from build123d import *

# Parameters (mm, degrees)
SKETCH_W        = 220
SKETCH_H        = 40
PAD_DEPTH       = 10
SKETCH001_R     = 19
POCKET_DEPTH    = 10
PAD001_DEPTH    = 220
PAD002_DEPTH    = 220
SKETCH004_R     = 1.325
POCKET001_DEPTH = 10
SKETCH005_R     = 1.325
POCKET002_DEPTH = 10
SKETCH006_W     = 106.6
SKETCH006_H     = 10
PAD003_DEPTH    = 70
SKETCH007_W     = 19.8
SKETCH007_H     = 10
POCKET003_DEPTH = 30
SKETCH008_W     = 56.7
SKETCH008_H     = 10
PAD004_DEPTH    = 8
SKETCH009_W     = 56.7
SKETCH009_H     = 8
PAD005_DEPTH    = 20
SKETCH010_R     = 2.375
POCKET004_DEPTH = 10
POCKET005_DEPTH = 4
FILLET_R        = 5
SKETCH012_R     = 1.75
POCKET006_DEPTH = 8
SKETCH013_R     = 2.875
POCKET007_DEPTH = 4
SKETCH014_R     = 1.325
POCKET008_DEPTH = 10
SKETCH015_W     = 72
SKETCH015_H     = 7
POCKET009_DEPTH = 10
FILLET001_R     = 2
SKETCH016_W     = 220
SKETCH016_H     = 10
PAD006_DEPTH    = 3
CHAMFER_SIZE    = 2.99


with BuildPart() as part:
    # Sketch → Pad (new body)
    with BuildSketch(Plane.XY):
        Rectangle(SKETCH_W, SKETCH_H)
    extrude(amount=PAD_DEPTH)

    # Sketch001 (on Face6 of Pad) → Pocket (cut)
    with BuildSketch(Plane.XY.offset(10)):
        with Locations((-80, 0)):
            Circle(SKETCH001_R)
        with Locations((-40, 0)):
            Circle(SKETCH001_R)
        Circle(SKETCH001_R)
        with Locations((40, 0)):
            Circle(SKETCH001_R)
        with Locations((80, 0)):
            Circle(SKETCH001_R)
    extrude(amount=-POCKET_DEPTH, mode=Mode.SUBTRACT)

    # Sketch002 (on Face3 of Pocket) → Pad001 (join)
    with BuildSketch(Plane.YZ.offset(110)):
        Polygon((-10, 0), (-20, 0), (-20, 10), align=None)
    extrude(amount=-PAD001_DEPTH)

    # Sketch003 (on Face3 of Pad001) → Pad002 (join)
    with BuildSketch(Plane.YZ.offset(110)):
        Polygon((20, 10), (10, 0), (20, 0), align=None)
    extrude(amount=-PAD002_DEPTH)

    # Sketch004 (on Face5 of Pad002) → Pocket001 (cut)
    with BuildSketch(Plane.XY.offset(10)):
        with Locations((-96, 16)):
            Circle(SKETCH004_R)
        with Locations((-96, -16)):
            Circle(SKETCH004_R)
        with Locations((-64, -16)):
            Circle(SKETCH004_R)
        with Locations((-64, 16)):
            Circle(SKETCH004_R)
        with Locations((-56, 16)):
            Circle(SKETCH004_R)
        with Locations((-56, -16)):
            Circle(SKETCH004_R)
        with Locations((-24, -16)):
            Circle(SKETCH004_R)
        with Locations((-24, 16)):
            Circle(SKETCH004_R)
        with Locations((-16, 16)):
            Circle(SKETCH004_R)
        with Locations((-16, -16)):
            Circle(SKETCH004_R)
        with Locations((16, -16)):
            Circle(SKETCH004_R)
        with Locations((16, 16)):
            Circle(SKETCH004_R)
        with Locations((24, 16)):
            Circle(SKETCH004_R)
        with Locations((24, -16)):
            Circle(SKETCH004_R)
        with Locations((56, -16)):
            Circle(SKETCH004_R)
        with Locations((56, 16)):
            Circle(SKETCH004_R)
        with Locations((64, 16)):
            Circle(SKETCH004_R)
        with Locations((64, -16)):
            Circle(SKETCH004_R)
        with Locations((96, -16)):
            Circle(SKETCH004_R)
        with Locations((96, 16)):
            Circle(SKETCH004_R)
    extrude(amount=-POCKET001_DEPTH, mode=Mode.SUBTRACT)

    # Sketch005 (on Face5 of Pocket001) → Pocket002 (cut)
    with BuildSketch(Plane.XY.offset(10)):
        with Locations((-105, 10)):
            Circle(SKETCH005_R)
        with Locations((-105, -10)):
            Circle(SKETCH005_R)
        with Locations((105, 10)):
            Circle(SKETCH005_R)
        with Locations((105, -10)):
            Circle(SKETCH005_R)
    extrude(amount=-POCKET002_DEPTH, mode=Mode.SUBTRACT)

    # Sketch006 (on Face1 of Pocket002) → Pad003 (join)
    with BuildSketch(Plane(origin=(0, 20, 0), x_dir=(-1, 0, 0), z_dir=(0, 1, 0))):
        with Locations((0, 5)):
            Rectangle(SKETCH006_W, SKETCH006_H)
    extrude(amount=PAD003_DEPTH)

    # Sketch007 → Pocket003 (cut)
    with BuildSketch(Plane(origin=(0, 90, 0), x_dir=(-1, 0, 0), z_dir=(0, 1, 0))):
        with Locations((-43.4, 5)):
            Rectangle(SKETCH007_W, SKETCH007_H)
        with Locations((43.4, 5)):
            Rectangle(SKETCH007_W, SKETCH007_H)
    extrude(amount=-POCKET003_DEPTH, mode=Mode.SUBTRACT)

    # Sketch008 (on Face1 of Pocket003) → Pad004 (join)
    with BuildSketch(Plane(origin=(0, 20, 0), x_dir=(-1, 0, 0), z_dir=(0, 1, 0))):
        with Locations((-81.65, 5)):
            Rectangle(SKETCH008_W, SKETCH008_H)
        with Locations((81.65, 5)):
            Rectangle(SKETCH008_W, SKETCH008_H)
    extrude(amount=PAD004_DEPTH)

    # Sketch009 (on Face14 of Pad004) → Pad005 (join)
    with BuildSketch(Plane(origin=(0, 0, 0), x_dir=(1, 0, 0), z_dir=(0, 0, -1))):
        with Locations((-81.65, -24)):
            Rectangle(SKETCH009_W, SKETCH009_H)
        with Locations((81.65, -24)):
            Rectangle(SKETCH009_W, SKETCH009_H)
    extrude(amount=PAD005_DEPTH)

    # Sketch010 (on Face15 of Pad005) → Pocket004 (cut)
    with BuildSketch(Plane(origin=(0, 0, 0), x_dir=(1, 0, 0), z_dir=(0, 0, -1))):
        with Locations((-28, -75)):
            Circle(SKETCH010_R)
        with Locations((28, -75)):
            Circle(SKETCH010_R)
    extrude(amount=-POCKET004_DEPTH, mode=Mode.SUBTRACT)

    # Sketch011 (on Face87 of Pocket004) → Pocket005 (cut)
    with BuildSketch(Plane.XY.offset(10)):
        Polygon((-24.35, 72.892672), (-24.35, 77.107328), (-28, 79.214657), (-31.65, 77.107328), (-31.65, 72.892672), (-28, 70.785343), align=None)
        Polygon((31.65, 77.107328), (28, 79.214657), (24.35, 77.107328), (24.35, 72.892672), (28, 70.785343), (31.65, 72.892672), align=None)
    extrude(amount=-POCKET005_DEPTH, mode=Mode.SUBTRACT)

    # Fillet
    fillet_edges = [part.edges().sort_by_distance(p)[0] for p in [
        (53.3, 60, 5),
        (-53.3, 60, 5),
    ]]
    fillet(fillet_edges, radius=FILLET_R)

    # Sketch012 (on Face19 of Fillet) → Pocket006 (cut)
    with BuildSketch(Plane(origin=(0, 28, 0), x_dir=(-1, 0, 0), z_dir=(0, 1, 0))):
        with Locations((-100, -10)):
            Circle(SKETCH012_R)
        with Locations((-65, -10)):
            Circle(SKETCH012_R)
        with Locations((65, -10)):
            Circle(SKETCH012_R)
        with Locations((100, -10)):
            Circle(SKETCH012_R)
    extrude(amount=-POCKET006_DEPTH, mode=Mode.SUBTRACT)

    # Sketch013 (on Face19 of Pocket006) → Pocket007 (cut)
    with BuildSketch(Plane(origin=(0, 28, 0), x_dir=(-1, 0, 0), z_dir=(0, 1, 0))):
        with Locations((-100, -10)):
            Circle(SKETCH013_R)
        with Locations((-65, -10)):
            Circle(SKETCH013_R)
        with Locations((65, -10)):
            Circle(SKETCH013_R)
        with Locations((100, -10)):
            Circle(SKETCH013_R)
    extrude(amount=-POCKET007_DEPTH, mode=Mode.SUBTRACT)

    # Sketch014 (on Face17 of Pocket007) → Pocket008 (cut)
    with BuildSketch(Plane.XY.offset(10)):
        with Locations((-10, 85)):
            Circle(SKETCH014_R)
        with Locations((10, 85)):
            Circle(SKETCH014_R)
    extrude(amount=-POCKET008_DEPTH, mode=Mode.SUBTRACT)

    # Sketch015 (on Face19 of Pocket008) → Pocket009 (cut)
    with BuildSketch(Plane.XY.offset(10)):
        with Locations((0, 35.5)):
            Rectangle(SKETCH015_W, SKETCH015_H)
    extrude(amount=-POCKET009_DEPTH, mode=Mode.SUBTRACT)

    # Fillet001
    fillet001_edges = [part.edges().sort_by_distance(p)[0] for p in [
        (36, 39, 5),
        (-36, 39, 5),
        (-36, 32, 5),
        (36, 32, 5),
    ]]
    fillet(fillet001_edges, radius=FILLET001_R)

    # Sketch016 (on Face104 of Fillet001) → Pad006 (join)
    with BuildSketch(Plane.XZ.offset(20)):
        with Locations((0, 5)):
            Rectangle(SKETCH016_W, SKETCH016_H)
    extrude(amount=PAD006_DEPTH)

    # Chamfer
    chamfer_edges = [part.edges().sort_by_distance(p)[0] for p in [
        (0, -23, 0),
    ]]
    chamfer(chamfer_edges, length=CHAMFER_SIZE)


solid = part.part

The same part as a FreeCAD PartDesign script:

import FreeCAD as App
import Part
import Sketcher
Q = App.Units.Quantity


def edges_at(feature, points):
    """Names of the edges that pass closest to the given points."""
    edges = feature.Shape.Edges
    near = lambda p: min(range(len(edges)), key=lambda i: edges[i].distToShape(Part.Vertex(*p))[0])
    return sorted({f"Edge{near(p) + 1}" for p in points})


def add_polygon(sketch, points):
    """Adds a closed chain of lines whose ends are joined by coincident constraints."""
    first, n = sketch.GeometryCount, len(points)
    for a, b in zip(points, points[1:] + points[:1]):
        sketch.addGeometry(Part.LineSegment(App.Vector(*a, 0), App.Vector(*b, 0)), False)
    for i in range(n):
        sketch.addConstraint(Sketcher.Constraint("Coincident", first + i, 2, first + (i + 1) % n, 1))

doc = App.newDocument("Part")
body = doc.addObject("PartDesign::Body", "Body")

sketch1 = body.newObject("Sketcher::SketchObject", "Sketch")
sketch1.AttachmentSupport = (doc.getObject("XY_Plane"), [""])
sketch1.MapMode = "FlatFace"
add_polygon(sketch1, [(-110, 20), (-110, -20), (110, -20), (110, 20)])
sketch1.addConstraint(Sketcher.Constraint("Vertical", 0))
sketch1.addConstraint(Sketcher.Constraint("Horizontal", 1))
sketch1.addConstraint(Sketcher.Constraint("Vertical", 2))
sketch1.addConstraint(Sketcher.Constraint("Horizontal", 3))
sketch1.addConstraint(Sketcher.Constraint("Symmetric", 0, 2, 2, 2, -1, 1))
sketch1.addConstraint(Sketcher.Constraint("DistanceX", 1, 1, 1, 2, Q("220 mm")))
sketch1.addConstraint(Sketcher.Constraint("DistanceY", 0, 2, 0, 1, Q("40 mm")))
pad1 = body.newObject("PartDesign::Pad", "Pad")
pad1.Profile = sketch1
pad1.Length = 10

sketch2 = body.newObject("Sketcher::SketchObject", "Sketch001")
sketch2.AttachmentSupport = (doc.getObject("XY_Plane"), [""])
sketch2.MapMode = "FlatFace"
sketch2.AttachmentOffset = App.Placement(App.Vector(0, 0, 10), App.Rotation())
sketch2.addGeometry(Part.Circle(App.Vector(-80, 0, 0), App.Vector(0, 0, 1), 19), False)
sketch2.addGeometry(Part.Circle(App.Vector(-40, 0, 0), App.Vector(0, 0, 1), 19), False)
sketch2.addGeometry(Part.Circle(App.Vector(0, 0, 0), App.Vector(0, 0, 1), 19), False)
sketch2.addGeometry(Part.Circle(App.Vector(40, 0, 0), App.Vector(0, 0, 1), 19), False)
sketch2.addGeometry(Part.Circle(App.Vector(80, 0, 0), App.Vector(0, 0, 1), 19), False)
sketch2.addConstraint(Sketcher.Constraint("Coincident", 2, 3, -1, 1))
sketch2.addConstraint(Sketcher.Constraint("Equal", 0, 1))
sketch2.addConstraint(Sketcher.Constraint("Equal", 1, 2))
sketch2.addConstraint(Sketcher.Constraint("Equal", 2, 3))
sketch2.addConstraint(Sketcher.Constraint("Equal", 3, 4))
sketch2.addConstraint(Sketcher.Constraint("Symmetric", 1, 3, 3, 3, -1, 1))
sketch2.addConstraint(Sketcher.Constraint("Symmetric", 0, 3, 4, 3, -1, 1))
sketch2.addConstraint(Sketcher.Constraint("PointOnObject", 0, 3, -1))
sketch2.addConstraint(Sketcher.Constraint("PointOnObject", 1, 3, -1))
sketch2.addConstraint(Sketcher.Constraint("Diameter", 0, Q("38 mm")))
sketch2.addConstraint(Sketcher.Constraint("DistanceX", 0, 3, -1, 1, Q("80 mm")))
sketch2.addConstraint(Sketcher.Constraint("DistanceX", 1, 3, -1, 1, Q("40 mm")))
pocket1 = body.newObject("PartDesign::Pocket", "Pocket")
pocket1.Profile = sketch2
pocket1.Length = 10

sketch3 = body.newObject("Sketcher::SketchObject", "Sketch002")
sketch3.AttachmentSupport = (doc.getObject("YZ_Plane"), [""])
sketch3.MapMode = "FlatFace"
sketch3.AttachmentOffset = App.Placement(App.Vector(0, 0, 110), App.Rotation())
add_polygon(sketch3, [(-20, 0), (-10, 0), (-20, 10)])
sketch3.addConstraint(Sketcher.Constraint("Horizontal", 0))
sketch3.addConstraint(Sketcher.Constraint("Vertical", 2))
sketch3.addConstraint(Sketcher.Constraint("PointOnObject", 0, 2, -1))
sketch3.addConstraint(Sketcher.Constraint("Equal", 0, 2))
sketch3.addConstraint(Sketcher.Constraint("DistanceX", 0, 1, 0, 2, Q("10 mm")))
sketch3.addConstraint(Sketcher.Constraint("DistanceX", 0, 2, -1, 1, Q("10 mm")))
pad2 = body.newObject("PartDesign::Pad", "Pad001")
pad2.Profile = sketch3
pad2.Length = 220
pad2.Reversed = True

sketch4 = body.newObject("Sketcher::SketchObject", "Sketch003")
sketch4.AttachmentSupport = (doc.getObject("YZ_Plane"), [""])
sketch4.MapMode = "FlatFace"
sketch4.AttachmentOffset = App.Placement(App.Vector(0, 0, 110), App.Rotation())
add_polygon(sketch4, [(20, 10), (10, 0), (20, 0)])
sketch4.addConstraint(Sketcher.Constraint("Horizontal", 1))
sketch4.addConstraint(Sketcher.Constraint("Vertical", 2))
sketch4.addConstraint(Sketcher.Constraint("PointOnObject", 0, 2, -1))
sketch4.addConstraint(Sketcher.Constraint("Equal", 1, 2))
sketch4.addConstraint(Sketcher.Constraint("DistanceX", 1, 1, 1, 2, Q("10 mm")))
sketch4.addConstraint(Sketcher.Constraint("DistanceX", -1, 1, 0, 2, Q("10 mm")))
pad3 = body.newObject("PartDesign::Pad", "Pad002")
pad3.Profile = sketch4
pad3.Length = 220
pad3.Reversed = True

sketch5 = body.newObject("Sketcher::SketchObject", "Sketch004")
sketch5.AttachmentSupport = (doc.getObject("XY_Plane"), [""])
sketch5.MapMode = "FlatFace"
sketch5.AttachmentOffset = App.Placement(App.Vector(0, 0, 10), App.Rotation())
sketch5.addGeometry(Part.Circle(App.Vector(-96, 16, 0), App.Vector(0, 0, 1), 1.3), False)
sketch5.addGeometry(Part.Circle(App.Vector(-96, -16, 0), App.Vector(0, 0, 1), 1.3), False)
sketch5.addGeometry(Part.Circle(App.Vector(-64, -16, 0), App.Vector(0, 0, 1), 1.3), False)
sketch5.addGeometry(Part.Circle(App.Vector(-64, 16, 0), App.Vector(0, 0, 1), 1.3), False)
sketch5.addGeometry(Part.Circle(App.Vector(-56, 16, 0), App.Vector(0, 0, 1), 1.3), False)
sketch5.addGeometry(Part.Circle(App.Vector(-56, -16, 0), App.Vector(0, 0, 1), 1.3), False)
sketch5.addGeometry(Part.Circle(App.Vector(-24, -16, 0), App.Vector(0, 0, 1), 1.3), False)
sketch5.addGeometry(Part.Circle(App.Vector(-24, 16, 0), App.Vector(0, 0, 1), 1.3), False)
sketch5.addGeometry(Part.Circle(App.Vector(-16, 16, 0), App.Vector(0, 0, 1), 1.3), False)
sketch5.addGeometry(Part.Circle(App.Vector(-16, -16, 0), App.Vector(0, 0, 1), 1.3), False)
sketch5.addGeometry(Part.Circle(App.Vector(16, -16, 0), App.Vector(0, 0, 1), 1.3), False)
sketch5.addGeometry(Part.Circle(App.Vector(16, 16, 0), App.Vector(0, 0, 1), 1.3), False)
sketch5.addGeometry(Part.Circle(App.Vector(24, 16, 0), App.Vector(0, 0, 1), 1.3), False)
sketch5.addGeometry(Part.Circle(App.Vector(24, -16, 0), App.Vector(0, 0, 1), 1.3), False)
sketch5.addGeometry(Part.Circle(App.Vector(56, -16, 0), App.Vector(0, 0, 1), 1.3), False)
sketch5.addGeometry(Part.Circle(App.Vector(56, 16, 0), App.Vector(0, 0, 1), 1.3), False)
sketch5.addGeometry(Part.Circle(App.Vector(64, 16, 0), App.Vector(0, 0, 1), 1.3), False)
sketch5.addGeometry(Part.Circle(App.Vector(64, -16, 0), App.Vector(0, 0, 1), 1.3), False)
sketch5.addGeometry(Part.Circle(App.Vector(96, -16, 0), App.Vector(0, 0, 1), 1.3), False)
sketch5.addGeometry(Part.Circle(App.Vector(96, 16, 0), App.Vector(0, 0, 1), 1.3), False)
sketch5.addConstraint(Sketcher.Constraint("Equal", 0, 1))
sketch5.addConstraint(Sketcher.Constraint("Equal", 1, 2))
sketch5.addConstraint(Sketcher.Constraint("Equal", 2, 3))
sketch5.addConstraint(Sketcher.Constraint("Equal", 3, 4))
sketch5.addConstraint(Sketcher.Constraint("Equal", 4, 5))
sketch5.addConstraint(Sketcher.Constraint("Equal", 5, 6))
sketch5.addConstraint(Sketcher.Constraint("Equal", 6, 7))
sketch5.addConstraint(Sketcher.Constraint("Equal", 7, 8))
sketch5.addConstraint(Sketcher.Constraint("Equal", 8, 9))
sketch5.addConstraint(Sketcher.Constraint("Equal", 9, 10))
sketch5.addConstraint(Sketcher.Constraint("Equal", 10, 11))
sketch5.addConstraint(Sketcher.Constraint("Equal", 11, 12))
sketch5.addConstraint(Sketcher.Constraint("Equal", 12, 13))
sketch5.addConstraint(Sketcher.Constraint("Equal", 13, 14))
sketch5.addConstraint(Sketcher.Constraint("Equal", 14, 15))
sketch5.addConstraint(Sketcher.Constraint("Equal", 15, 16))
sketch5.addConstraint(Sketcher.Constraint("Equal", 16, 17))
sketch5.addConstraint(Sketcher.Constraint("Equal", 17, 18))
sketch5.addConstraint(Sketcher.Constraint("Equal", 18, 19))
sketch5.addConstraint(Sketcher.Constraint("Symmetric", 8, 3, 10, 3, -1, 1))
sketch5.addConstraint(Sketcher.Constraint("Symmetric", 9, 3, 11, 3, -1, 1))
sketch5.addConstraint(Sketcher.Constraint("Symmetric", 6, 3, 12, 3, -1, 1))
sketch5.addConstraint(Sketcher.Constraint("Symmetric", 7, 3, 13, 3, -1, 1))
sketch5.addConstraint(Sketcher.Constraint("Symmetric", 4, 3, 14, 3, -1, 1))
sketch5.addConstraint(Sketcher.Constraint("Symmetric", 5, 3, 15, 3, -1, 1))
sketch5.addConstraint(Sketcher.Constraint("Symmetric", 2, 3, 16, 3, -1, 1))
sketch5.addConstraint(Sketcher.Constraint("Symmetric", 3, 3, 17, 3, -1, 1))
sketch5.addConstraint(Sketcher.Constraint("Symmetric", 0, 3, 18, 3, -1, 1))
sketch5.addConstraint(Sketcher.Constraint("Symmetric", 1, 3, 19, 3, -1, 1))
sketch5.addConstraint(Sketcher.Constraint("Symmetric", 9, 3, 10, 3, -2))
sketch5.addConstraint(Sketcher.Constraint("Symmetric", 7, 3, 12, 3, -2))
sketch5.addConstraint(Sketcher.Constraint("Symmetric", 5, 3, 14, 3, -2))
sketch5.addConstraint(Sketcher.Constraint("Symmetric", 3, 3, 16, 3, -2))
sketch5.addConstraint(Sketcher.Constraint("Symmetric", 1, 3, 18, 3, -2))
sketch5.addConstraint(Sketcher.Constraint("Horizontal", 1, 3, 2, 3))
sketch5.addConstraint(Sketcher.Constraint("Horizontal", 3, 3, 4, 3))
sketch5.addConstraint(Sketcher.Constraint("Horizontal", 5, 3, 6, 3))
sketch5.addConstraint(Sketcher.Constraint("Horizontal", 7, 3, 8, 3))
sketch5.addConstraint(Sketcher.Constraint("Diameter", 0, Q("2.65 mm")))
sketch5.addConstraint(Sketcher.Constraint("DistanceX", 0, 3, -1, 1, Q("96 mm")))
sketch5.addConstraint(Sketcher.Constraint("DistanceY", -1, 1, 0, 3, Q("16 mm")))
sketch5.addConstraint(Sketcher.Constraint("DistanceX", 2, 3, -1, 1, Q("64 mm")))
sketch5.addConstraint(Sketcher.Constraint("DistanceX", 4, 3, -1, 1, Q("56 mm")))
sketch5.addConstraint(Sketcher.Constraint("DistanceX", 6, 3, -1, 1, Q("24 mm")))
sketch5.addConstraint(Sketcher.Constraint("DistanceX", 8, 3, -1, 1, Q("16 mm")))
pocket2 = body.newObject("PartDesign::Pocket", "Pocket001")
pocket2.Profile = sketch5
pocket2.Length = 10

sketch6 = body.newObject("Sketcher::SketchObject", "Sketch005")
sketch6.AttachmentSupport = (doc.getObject("XY_Plane"), [""])
sketch6.MapMode = "FlatFace"
sketch6.AttachmentOffset = App.Placement(App.Vector(0, 0, 10), App.Rotation())
sketch6.addGeometry(Part.Circle(App.Vector(-105, 10, 0), App.Vector(0, 0, 1), 1.3), False)
sketch6.addGeometry(Part.Circle(App.Vector(-105, -10, 0), App.Vector(0, 0, 1), 1.3), False)
sketch6.addGeometry(Part.Circle(App.Vector(105, 10, 0), App.Vector(0, 0, 1), 1.3), False)
sketch6.addGeometry(Part.Circle(App.Vector(105, -10, 0), App.Vector(0, 0, 1), 1.3), False)
sketch6.addConstraint(Sketcher.Constraint("Equal", 0, 1))
sketch6.addConstraint(Sketcher.Constraint("Equal", 1, 2))
sketch6.addConstraint(Sketcher.Constraint("Equal", 2, 3))
sketch6.addConstraint(Sketcher.Constraint("Symmetric", 1, 3, 2, 3, -1, 1))
sketch6.addConstraint(Sketcher.Constraint("Symmetric", 0, 3, 3, 3, -1, 1))
sketch6.addConstraint(Sketcher.Constraint("Symmetric", 0, 3, 2, 3, -2))
sketch6.addConstraint(Sketcher.Constraint("Diameter", 0, Q("2.65 mm")))
sketch6.addConstraint(Sketcher.Constraint("DistanceX", 0, 3, -1, 1, Q("105 mm")))
sketch6.addConstraint(Sketcher.Constraint("DistanceY", -1, 1, 0, 3, Q("10 mm")))
pocket3 = body.newObject("PartDesign::Pocket", "Pocket002")
pocket3.Profile = sketch6
pocket3.Length = 10

sketch7 = body.newObject("Sketcher::SketchObject", "Sketch006")
sketch7.AttachmentSupport = (doc.getObject("XZ_Plane"), [""])
sketch7.MapMode = "FlatFace"
sketch7.AttachmentOffset = App.Placement(App.Vector(0, 0, -20), App.Rotation())
add_polygon(sketch7, [(53, 10), (53, 0), (-53, 0), (-53, 10)])
sketch7.addConstraint(Sketcher.Constraint("Vertical", 0))
sketch7.addConstraint(Sketcher.Constraint("Horizontal", 1))
sketch7.addConstraint(Sketcher.Constraint("Vertical", 2))
sketch7.addConstraint(Sketcher.Constraint("Horizontal", 3))
sketch7.addConstraint(Sketcher.Constraint("Symmetric", 0, 2, 1, 2, -1, 1))
sketch7.addConstraint(Sketcher.Constraint("DistanceY", 0, 2, 0, 1, Q("10 mm")))
sketch7.addConstraint(Sketcher.Constraint("DistanceX", 1, 2, 1, 1, Q("106.6 mm")))
pad4 = body.newObject("PartDesign::Pad", "Pad003")
pad4.Profile = sketch7
pad4.Length = 70
pad4.Reversed = True

sketch8 = body.newObject("Sketcher::SketchObject", "Sketch007")
sketch8.AttachmentSupport = (doc.getObject("XZ_Plane"), [""])
sketch8.MapMode = "FlatFace"
sketch8.AttachmentOffset = App.Placement(App.Vector(0, 0, -90), App.Rotation())
add_polygon(sketch8, [(53, 10), (53, 0), (34, 0), (34, 10)])
add_polygon(sketch8, [(-34, 10), (-34, 0), (-53, 0), (-53, 10)])
sketch8.addConstraint(Sketcher.Constraint("Vertical", 0))
sketch8.addConstraint(Sketcher.Constraint("Horizontal", 1))
sketch8.addConstraint(Sketcher.Constraint("Vertical", 2))
sketch8.addConstraint(Sketcher.Constraint("Horizontal", 3))
sketch8.addConstraint(Sketcher.Constraint("Vertical", 4))
sketch8.addConstraint(Sketcher.Constraint("Horizontal", 5))
sketch8.addConstraint(Sketcher.Constraint("Vertical", 6))
sketch8.addConstraint(Sketcher.Constraint("Horizontal", 7))
sketch8.addConstraint(Sketcher.Constraint("Symmetric", 1, 2, 4, 2, -1, 1))
sketch8.addConstraint(Sketcher.Constraint("Symmetric", 0, 2, 5, 2, -2))
sketch8.addConstraint(Sketcher.Constraint("Horizontal", 3, 2, 6, 2))
sketch8.addConstraint(Sketcher.Constraint("DistanceY", 0, 2, 0, 1, Q("10 mm")))
sketch8.addConstraint(Sketcher.Constraint("DistanceX", 1, 2, 1, 1, Q("19.8 mm")))
sketch8.addConstraint(Sketcher.Constraint("DistanceX", 4, 2, 1, 2, Q("67 mm")))
pocket4 = body.newObject("PartDesign::Pocket", "Pocket003")
pocket4.Profile = sketch8
pocket4.Length = 30
pocket4.Reversed = True

sketch9 = body.newObject("Sketcher::SketchObject", "Sketch008")
sketch9.AttachmentSupport = (doc.getObject("XZ_Plane"), [""])
sketch9.MapMode = "FlatFace"
sketch9.AttachmentOffset = App.Placement(App.Vector(0, 0, -20), App.Rotation())
add_polygon(sketch9, [(110, 10), (110, 0), (53, 0), (53, 10)])
add_polygon(sketch9, [(-53, 10), (-53, 0), (-110, 0), (-110, 10)])
sketch9.addConstraint(Sketcher.Constraint("Vertical", 0))
sketch9.addConstraint(Sketcher.Constraint("Horizontal", 1))
sketch9.addConstraint(Sketcher.Constraint("Vertical", 2))
sketch9.addConstraint(Sketcher.Constraint("Horizontal", 3))
sketch9.addConstraint(Sketcher.Constraint("Vertical", 4))
sketch9.addConstraint(Sketcher.Constraint("Horizontal", 5))
sketch9.addConstraint(Sketcher.Constraint("Vertical", 6))
sketch9.addConstraint(Sketcher.Constraint("Horizontal", 7))
sketch9.addConstraint(Sketcher.Constraint("Symmetric", 1, 2, 4, 2, -1, 1))
sketch9.addConstraint(Sketcher.Constraint("Symmetric", 0, 2, 5, 2, -2))
sketch9.addConstraint(Sketcher.Constraint("Horizontal", 3, 2, 6, 2))
sketch9.addConstraint(Sketcher.Constraint("DistanceY", 0, 2, 0, 1, Q("10 mm")))
sketch9.addConstraint(Sketcher.Constraint("DistanceX", 1, 2, 1, 1, Q("56.7 mm")))
sketch9.addConstraint(Sketcher.Constraint("DistanceX", -1, 1, 0, 2, Q("110 mm")))
pad5 = body.newObject("PartDesign::Pad", "Pad004")
pad5.Profile = sketch9
pad5.Length = 8
pad5.Reversed = True

sketch10 = body.newObject("Sketcher::SketchObject", "Sketch009")
sketch10.AttachmentSupport = (doc.getObject("XY_Plane"), [""])
sketch10.MapMode = "FlatFace"
add_polygon(sketch10, [(-110, 20), (-110, 28), (-53, 28), (-53, 20)])
add_polygon(sketch10, [(53, 20), (53, 28), (110, 28), (110, 20)])
sketch10.addConstraint(Sketcher.Constraint("Vertical", 0))
sketch10.addConstraint(Sketcher.Constraint("Horizontal", 1))
sketch10.addConstraint(Sketcher.Constraint("Vertical", 2))
sketch10.addConstraint(Sketcher.Constraint("Horizontal", 3))
sketch10.addConstraint(Sketcher.Constraint("Vertical", 4))
sketch10.addConstraint(Sketcher.Constraint("Horizontal", 5))
sketch10.addConstraint(Sketcher.Constraint("Vertical", 6))
sketch10.addConstraint(Sketcher.Constraint("Horizontal", 7))
sketch10.addConstraint(Sketcher.Constraint("Symmetric", 1, 2, 4, 2, -2))
sketch10.addConstraint(Sketcher.Constraint("Symmetric", 3, 2, 6, 2, -2))
sketch10.addConstraint(Sketcher.Constraint("DistanceY", 0, 1, 0, 2, Q("8 mm")))
sketch10.addConstraint(Sketcher.Constraint("DistanceX", 1, 1, 1, 2, Q("56.7 mm")))
sketch10.addConstraint(Sketcher.Constraint("DistanceX", 0, 2, -1, 1, Q("110 mm")))
sketch10.addConstraint(Sketcher.Constraint("DistanceY", -1, 1, 0, 2, Q("28 mm")))
pad6 = body.newObject("PartDesign::Pad", "Pad005")
pad6.Profile = sketch10
pad6.Length = 20
pad6.Reversed = True

sketch11 = body.newObject("Sketcher::SketchObject", "Sketch010")
sketch11.AttachmentSupport = (doc.getObject("XY_Plane"), [""])
sketch11.MapMode = "FlatFace"
sketch11.addGeometry(Part.Circle(App.Vector(-28, 75, 0), App.Vector(0, 0, 1), 2.4), False)
sketch11.addGeometry(Part.Circle(App.Vector(28, 75, 0), App.Vector(0, 0, 1), 2.4), False)
sketch11.addConstraint(Sketcher.Constraint("Equal", 0, 1))
sketch11.addConstraint(Sketcher.Constraint("Symmetric", 0, 3, 1, 3, -2))
sketch11.addConstraint(Sketcher.Constraint("Diameter", 0, Q("4.75 mm")))
sketch11.addConstraint(Sketcher.Constraint("DistanceX", 0, 3, -1, 1, Q("28 mm")))
sketch11.addConstraint(Sketcher.Constraint("DistanceY", -1, 1, 0, 3, Q("75 mm")))
pocket5 = body.newObject("PartDesign::Pocket", "Pocket004")
pocket5.Profile = sketch11
pocket5.Length = 10
pocket5.Reversed = True

sketch12 = body.newObject("Sketcher::SketchObject", "Sketch011")
sketch12.AttachmentSupport = (doc.getObject("XY_Plane"), [""])
sketch12.MapMode = "FlatFace"
sketch12.AttachmentOffset = App.Placement(App.Vector(0, 0, 10), App.Rotation())
add_polygon(sketch12, [(-24.4, 72.9), (-24.4, 77.1), (-28, 79.2), (-31.6, 77.1), (-31.6, 72.9), (-28, 70.8)])
add_polygon(sketch12, [(31.6, 77.1), (28, 79.2), (24.4, 77.1), (24.4, 72.9), (28, 70.8), (31.6, 72.9)])
sketch12.addConstraint(Sketcher.Constraint("Vertical", 0))
sketch12.addConstraint(Sketcher.Constraint("Vertical", 3))
sketch12.addConstraint(Sketcher.Constraint("Vertical", 8))
sketch12.addConstraint(Sketcher.Constraint("Vertical", 11))
sketch12.addConstraint(Sketcher.Constraint("Symmetric", 1, 2, 6, 2, -2))
sketch12.addConstraint(Sketcher.Constraint("Symmetric", 0, 2, 7, 2, -2))
sketch12.addConstraint(Sketcher.Constraint("Symmetric", 4, 2, 9, 2, -2))
sketch12.addConstraint(Sketcher.Constraint("Symmetric", 3, 2, 10, 2, -2))
sketch12.addConstraint(Sketcher.Constraint("Parallel", 1, 4))
sketch12.addConstraint(Sketcher.Constraint("Parallel", 2, 5))
sketch12.addConstraint(Sketcher.Constraint("Parallel", 4, 6))
sketch12.addConstraint(Sketcher.Constraint("Parallel", 5, 7))
sketch12.addConstraint(Sketcher.Constraint("Parallel", 6, 9))
sketch12.addConstraint(Sketcher.Constraint("Horizontal", 0, 2, 2, 2))
sketch12.addConstraint(Sketcher.Constraint("Horizontal", 3, 2, 5, 2))
sketch12.addConstraint(Sketcher.Constraint("Angle", 1, Q("149.999994 deg")))
sketch12.addConstraint(Sketcher.Constraint("DistanceX", 1, 2, -1, 1, Q("28 mm")))
sketch12.addConstraint(Sketcher.Constraint("DistanceX", 2, 2, 0, 2, Q("7.3 mm")))
sketch12.addConstraint(Sketcher.Constraint("DistanceY", 0, 1, 0, 2, Q("4.214656 mm")))
sketch12.addConstraint(Sketcher.Constraint("DistanceY", -1, 1, 0, 2, Q("77.107328 mm")))
pocket6 = body.newObject("PartDesign::Pocket", "Pocket005")
pocket6.Profile = sketch12
pocket6.Length = 4
doc.recompute()

fillet = body.newObject("PartDesign::Fillet", "Fillet")
fillet.Base = (pocket6, edges_at(pocket6, [(53.3, 60, 5), (-53.3, 60, 5)]))
fillet.Radius = 5

sketch13 = body.newObject("Sketcher::SketchObject", "Sketch012")
sketch13.AttachmentSupport = (doc.getObject("XZ_Plane"), [""])
sketch13.MapMode = "FlatFace"
sketch13.AttachmentOffset = App.Placement(App.Vector(0, 0, -28), App.Rotation())
sketch13.addGeometry(Part.Circle(App.Vector(100, -10, 0), App.Vector(0, 0, 1), 1.8), False)
sketch13.addGeometry(Part.Circle(App.Vector(65, -10, 0), App.Vector(0, 0, 1), 1.8), False)
sketch13.addGeometry(Part.Circle(App.Vector(-65, -10, 0), App.Vector(0, 0, 1), 1.8), False)
sketch13.addGeometry(Part.Circle(App.Vector(-100, -10, 0), App.Vector(0, 0, 1), 1.8), False)
sketch13.addConstraint(Sketcher.Constraint("Equal", 0, 1))
sketch13.addConstraint(Sketcher.Constraint("Equal", 1, 2))
sketch13.addConstraint(Sketcher.Constraint("Equal", 2, 3))
sketch13.addConstraint(Sketcher.Constraint("Symmetric", 1, 3, 2, 3, -2))
sketch13.addConstraint(Sketcher.Constraint("Symmetric", 0, 3, 3, 3, -2))
sketch13.addConstraint(Sketcher.Constraint("Horizontal", 0, 3, 1, 3))
sketch13.addConstraint(Sketcher.Constraint("Diameter", 0, Q("3.5 mm")))
sketch13.addConstraint(Sketcher.Constraint("DistanceX", -1, 1, 0, 3, Q("100 mm")))
sketch13.addConstraint(Sketcher.Constraint("DistanceY", 0, 3, -1, 1, Q("10 mm")))
sketch13.addConstraint(Sketcher.Constraint("DistanceX", -1, 1, 1, 3, Q("65 mm")))
pocket7 = body.newObject("PartDesign::Pocket", "Pocket006")
pocket7.Profile = sketch13
pocket7.Length = 8
pocket7.Reversed = True

sketch14 = body.newObject("Sketcher::SketchObject", "Sketch013")
sketch14.AttachmentSupport = (doc.getObject("XZ_Plane"), [""])
sketch14.MapMode = "FlatFace"
sketch14.AttachmentOffset = App.Placement(App.Vector(0, 0, -28), App.Rotation())
sketch14.addGeometry(Part.Circle(App.Vector(100, -10, 0), App.Vector(0, 0, 1), 2.9), False)
sketch14.addGeometry(Part.Circle(App.Vector(65, -10, 0), App.Vector(0, 0, 1), 2.9), False)
sketch14.addGeometry(Part.Circle(App.Vector(-65, -10, 0), App.Vector(0, 0, 1), 2.9), False)
sketch14.addGeometry(Part.Circle(App.Vector(-100, -10, 0), App.Vector(0, 0, 1), 2.9), False)
sketch14.addConstraint(Sketcher.Constraint("Equal", 0, 1))
sketch14.addConstraint(Sketcher.Constraint("Equal", 1, 2))
sketch14.addConstraint(Sketcher.Constraint("Equal", 2, 3))
sketch14.addConstraint(Sketcher.Constraint("Symmetric", 1, 3, 2, 3, -2))
sketch14.addConstraint(Sketcher.Constraint("Symmetric", 0, 3, 3, 3, -2))
sketch14.addConstraint(Sketcher.Constraint("Horizontal", 0, 3, 1, 3))
sketch14.addConstraint(Sketcher.Constraint("Diameter", 0, Q("5.75 mm")))
sketch14.addConstraint(Sketcher.Constraint("DistanceX", -1, 1, 0, 3, Q("100 mm")))
sketch14.addConstraint(Sketcher.Constraint("DistanceY", 0, 3, -1, 1, Q("10 mm")))
sketch14.addConstraint(Sketcher.Constraint("DistanceX", -1, 1, 1, 3, Q("65 mm")))
pocket8 = body.newObject("PartDesign::Pocket", "Pocket007")
pocket8.Profile = sketch14
pocket8.Length = 4
pocket8.Reversed = True

sketch15 = body.newObject("Sketcher::SketchObject", "Sketch014")
sketch15.AttachmentSupport = (doc.getObject("XY_Plane"), [""])
sketch15.MapMode = "FlatFace"
sketch15.AttachmentOffset = App.Placement(App.Vector(0, 0, 10), App.Rotation())
sketch15.addGeometry(Part.Circle(App.Vector(-10, 85, 0), App.Vector(0, 0, 1), 1.3), False)
sketch15.addGeometry(Part.Circle(App.Vector(10, 85, 0), App.Vector(0, 0, 1), 1.3), False)
sketch15.addConstraint(Sketcher.Constraint("Equal", 0, 1))
sketch15.addConstraint(Sketcher.Constraint("Symmetric", 0, 3, 1, 3, -2))
sketch15.addConstraint(Sketcher.Constraint("Diameter", 0, Q("2.65 mm")))
sketch15.addConstraint(Sketcher.Constraint("DistanceX", 0, 3, -1, 1, Q("10 mm")))
sketch15.addConstraint(Sketcher.Constraint("DistanceY", -1, 1, 0, 3, Q("85 mm")))
pocket9 = body.newObject("PartDesign::Pocket", "Pocket008")
pocket9.Profile = sketch15
pocket9.Length = 10

sketch16 = body.newObject("Sketcher::SketchObject", "Sketch015")
sketch16.AttachmentSupport = (doc.getObject("XY_Plane"), [""])
sketch16.MapMode = "FlatFace"
sketch16.AttachmentOffset = App.Placement(App.Vector(0, 0, 10), App.Rotation())
add_polygon(sketch16, [(-36, 39), (-36, 32), (36, 32), (36, 39)])
sketch16.addConstraint(Sketcher.Constraint("Vertical", 0))
sketch16.addConstraint(Sketcher.Constraint("Horizontal", 1))
sketch16.addConstraint(Sketcher.Constraint("Vertical", 2))
sketch16.addConstraint(Sketcher.Constraint("Horizontal", 3))
sketch16.addConstraint(Sketcher.Constraint("DistanceX", 1, 1, 1, 2, Q("72 mm")))
sketch16.addConstraint(Sketcher.Constraint("DistanceY", 0, 2, 0, 1, Q("7 mm")))
sketch16.addConstraint(Sketcher.Constraint("DistanceX", 0, 2, -1, 1, Q("36 mm")))
sketch16.addConstraint(Sketcher.Constraint("DistanceY", -1, 1, 0, 2, Q("32 mm")))
pocket10 = body.newObject("PartDesign::Pocket", "Pocket009")
pocket10.Profile = sketch16
pocket10.Length = 10
doc.recompute()

fillet2 = body.newObject("PartDesign::Fillet", "Fillet001")
fillet2.Base = (pocket10, edges_at(pocket10, [
    (36, 39, 5),
    (-36, 39, 5),
    (-36, 32, 5),
    (36, 32, 5),
]))
fillet2.Radius = 2

sketch17 = body.newObject("Sketcher::SketchObject", "Sketch016")
sketch17.AttachmentSupport = (doc.getObject("XZ_Plane"), [""])
sketch17.MapMode = "FlatFace"
sketch17.AttachmentOffset = App.Placement(App.Vector(0, 0, 20), App.Rotation())
add_polygon(sketch17, [(-110, 10), (-110, 0), (110, 0), (110, 10)])
sketch17.addConstraint(Sketcher.Constraint("Vertical", 0))
sketch17.addConstraint(Sketcher.Constraint("Horizontal", 1))
sketch17.addConstraint(Sketcher.Constraint("Vertical", 2))
sketch17.addConstraint(Sketcher.Constraint("Horizontal", 3))
sketch17.addConstraint(Sketcher.Constraint("Symmetric", 0, 2, 1, 2, -1, 1))
sketch17.addConstraint(Sketcher.Constraint("DistanceX", 1, 1, 1, 2, Q("220 mm")))
sketch17.addConstraint(Sketcher.Constraint("DistanceY", 0, 2, 0, 1, Q("10 mm")))
pad7 = body.newObject("PartDesign::Pad", "Pad006")
pad7.Profile = sketch17
pad7.Length = 3
doc.recompute()

chamfer = body.newObject("PartDesign::Chamfer", "Chamfer")
chamfer.Base = (pad7, edges_at(pad7, [(0, -23, 0)]))
chamfer.Size = 2.99

doc.recompute()
